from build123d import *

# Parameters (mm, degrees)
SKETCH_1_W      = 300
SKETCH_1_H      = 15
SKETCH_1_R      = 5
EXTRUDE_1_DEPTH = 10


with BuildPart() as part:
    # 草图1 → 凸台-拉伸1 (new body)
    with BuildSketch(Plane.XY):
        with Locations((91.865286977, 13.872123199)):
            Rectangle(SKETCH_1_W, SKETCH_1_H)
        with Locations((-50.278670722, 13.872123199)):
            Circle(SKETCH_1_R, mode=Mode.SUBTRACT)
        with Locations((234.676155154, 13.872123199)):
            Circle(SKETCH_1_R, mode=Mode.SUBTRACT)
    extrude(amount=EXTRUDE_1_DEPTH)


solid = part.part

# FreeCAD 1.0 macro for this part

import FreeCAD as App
import Part
import Sketcher
from FreeCAD import Vector
Q = App.Units.Quantity


def add_polygon(sketch, points):
    """Adds a closed chain of lines whose ends are joined by coincident constraints."""
    first, n = sketch.GeometryCount, len(points)
    for a, b in zip(points, points[1:] + points[:1]):
        sketch.addGeometry(Part.LineSegment(App.Vector(*a, 0), App.Vector(*b, 0)), False)
    for i in range(n):
        sketch.addConstraint(Sketcher.Constraint("Coincident", first + i, 2, first + (i + 1) % n, 1))

doc = App.newDocument("Part")
body = doc.addObject("PartDesign::Body", "Body")

# Sketch on XY plane
sketch1 = body.newObject("Sketcher::SketchObject", "Sketch")
sketch1.AttachmentSupport = (doc.getObject("XY_Plane"), [""])
sketch1.MapMode = "FlatFace"
add_polygon(sketch1, [(-58, 21), (-58, 6), (242, 6), (242, 21)])  # lines 0-3
sketch1.addGeometry(Part.Circle(Vector(-50, 14, 0), Vector(0, 0, 1), 5), False)  # 4
sketch1.addGeometry(Part.Circle(Vector(235, 14, 0), Vector(0, 0, 1), 5), False)  # 5
sketch1.addConstraint([
    Sketcher.Constraint("Vertical", 0),
    Sketcher.Constraint("Horizontal", 1),
    Sketcher.Constraint("Vertical", 2),
    Sketcher.Constraint("Horizontal", 3),
    Sketcher.Constraint("Equal", 4, 5),
    Sketcher.Constraint("Horizontal", 4, 3, 5, 3),
    Sketcher.Constraint("Diameter", 4, Q("10 mm")),
    Sketcher.Constraint("DistanceX", 1, 1, 1, 2, Q("300 mm")),
    Sketcher.Constraint("DistanceY", 0, 2, 0, 1, Q("15 mm")),
    Sketcher.Constraint("DistanceY", 0, 2, 4, 3, Q("7.5 mm")),
    Sketcher.Constraint("DistanceX", 4, 3, -1, 1, Q("50.278671 mm")),
    Sketcher.Constraint("DistanceX", 0, 2, 5, 3, Q("292.810868 mm")),
    Sketcher.Constraint("DistanceY", -1, 1, 4, 3, Q("13.872123 mm")),
    Sketcher.Constraint("DistanceX", -1, 1, 5, 3, Q("234.676155 mm")),
])
pad1 = body.newObject("PartDesign::Pad", "Pad")
pad1.Profile = sketch1
pad1.Length = 10

doc.recompute()
